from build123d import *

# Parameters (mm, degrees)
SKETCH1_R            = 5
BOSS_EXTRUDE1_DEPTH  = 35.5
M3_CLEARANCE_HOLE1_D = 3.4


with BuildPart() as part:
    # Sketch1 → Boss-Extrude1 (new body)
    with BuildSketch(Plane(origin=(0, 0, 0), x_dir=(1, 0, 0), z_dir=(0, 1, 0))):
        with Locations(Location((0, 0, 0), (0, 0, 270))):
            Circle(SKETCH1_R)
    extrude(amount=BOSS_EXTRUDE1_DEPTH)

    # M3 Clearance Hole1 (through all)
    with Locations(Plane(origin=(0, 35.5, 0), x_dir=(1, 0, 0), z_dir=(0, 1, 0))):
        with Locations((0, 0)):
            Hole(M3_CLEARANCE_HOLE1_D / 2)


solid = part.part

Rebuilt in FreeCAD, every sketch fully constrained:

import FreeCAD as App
import Part
import Sketcher

doc = App.newDocument("Part")
body = doc.addObject("PartDesign::Body", "Body")

sketch1 = body.newObject("Sketcher::SketchObject", "Sketch")
sketch1.AttachmentSupport = (doc.getObject("XZ_Plane"), [""])
sketch1.MapMode = "FlatFace"
sketch1.addGeometry(Part.Circle(App.Vector(0, 0, 0), App.Vector(0, 0, 1), 5), False)
sketch1.addConstraint(Sketcher.Constraint("Coincident", 0, 3, -1, 1))
sketch1.addConstraint(Sketcher.Constraint("Diameter", 0, 10.0))
pad1 = body.newObject("PartDesign::Pad", "Pad")
pad1.Profile = sketch1
pad1.Length = 35.5
pad1.Reversed = True

sketch2 = body.newObject("Sketcher::SketchObject", "Sketch001")
sketch2.AttachmentSupport = (doc.getObject("XZ_Plane"), [""])
sketch2.MapMode = "FlatFace"
sketch2.AttachmentOffset = App.Placement(App.Vector(0, 0, -35.5), App.Rotation())
sketch2.addGeometry(Part.Circle(App.Vector(0, 0, 0), App.Vector(0, 0, 1), 1.7), False)
sketch2.addConstraint(Sketcher.Constraint("Coincident", 0, 3, -1, 1))
sketch2.addConstraint(Sketcher.Constraint("Diameter", 0, 3.4))
doc.recompute()
hole = body.newObject("PartDesign::Hole", "Hole")
hole.Profile = sketch2
hole.ThreadType = "None"
hole.Diameter = 3.4
hole.DepthType = "ThroughAll"
hole.Reversed = True

doc.recompute()
